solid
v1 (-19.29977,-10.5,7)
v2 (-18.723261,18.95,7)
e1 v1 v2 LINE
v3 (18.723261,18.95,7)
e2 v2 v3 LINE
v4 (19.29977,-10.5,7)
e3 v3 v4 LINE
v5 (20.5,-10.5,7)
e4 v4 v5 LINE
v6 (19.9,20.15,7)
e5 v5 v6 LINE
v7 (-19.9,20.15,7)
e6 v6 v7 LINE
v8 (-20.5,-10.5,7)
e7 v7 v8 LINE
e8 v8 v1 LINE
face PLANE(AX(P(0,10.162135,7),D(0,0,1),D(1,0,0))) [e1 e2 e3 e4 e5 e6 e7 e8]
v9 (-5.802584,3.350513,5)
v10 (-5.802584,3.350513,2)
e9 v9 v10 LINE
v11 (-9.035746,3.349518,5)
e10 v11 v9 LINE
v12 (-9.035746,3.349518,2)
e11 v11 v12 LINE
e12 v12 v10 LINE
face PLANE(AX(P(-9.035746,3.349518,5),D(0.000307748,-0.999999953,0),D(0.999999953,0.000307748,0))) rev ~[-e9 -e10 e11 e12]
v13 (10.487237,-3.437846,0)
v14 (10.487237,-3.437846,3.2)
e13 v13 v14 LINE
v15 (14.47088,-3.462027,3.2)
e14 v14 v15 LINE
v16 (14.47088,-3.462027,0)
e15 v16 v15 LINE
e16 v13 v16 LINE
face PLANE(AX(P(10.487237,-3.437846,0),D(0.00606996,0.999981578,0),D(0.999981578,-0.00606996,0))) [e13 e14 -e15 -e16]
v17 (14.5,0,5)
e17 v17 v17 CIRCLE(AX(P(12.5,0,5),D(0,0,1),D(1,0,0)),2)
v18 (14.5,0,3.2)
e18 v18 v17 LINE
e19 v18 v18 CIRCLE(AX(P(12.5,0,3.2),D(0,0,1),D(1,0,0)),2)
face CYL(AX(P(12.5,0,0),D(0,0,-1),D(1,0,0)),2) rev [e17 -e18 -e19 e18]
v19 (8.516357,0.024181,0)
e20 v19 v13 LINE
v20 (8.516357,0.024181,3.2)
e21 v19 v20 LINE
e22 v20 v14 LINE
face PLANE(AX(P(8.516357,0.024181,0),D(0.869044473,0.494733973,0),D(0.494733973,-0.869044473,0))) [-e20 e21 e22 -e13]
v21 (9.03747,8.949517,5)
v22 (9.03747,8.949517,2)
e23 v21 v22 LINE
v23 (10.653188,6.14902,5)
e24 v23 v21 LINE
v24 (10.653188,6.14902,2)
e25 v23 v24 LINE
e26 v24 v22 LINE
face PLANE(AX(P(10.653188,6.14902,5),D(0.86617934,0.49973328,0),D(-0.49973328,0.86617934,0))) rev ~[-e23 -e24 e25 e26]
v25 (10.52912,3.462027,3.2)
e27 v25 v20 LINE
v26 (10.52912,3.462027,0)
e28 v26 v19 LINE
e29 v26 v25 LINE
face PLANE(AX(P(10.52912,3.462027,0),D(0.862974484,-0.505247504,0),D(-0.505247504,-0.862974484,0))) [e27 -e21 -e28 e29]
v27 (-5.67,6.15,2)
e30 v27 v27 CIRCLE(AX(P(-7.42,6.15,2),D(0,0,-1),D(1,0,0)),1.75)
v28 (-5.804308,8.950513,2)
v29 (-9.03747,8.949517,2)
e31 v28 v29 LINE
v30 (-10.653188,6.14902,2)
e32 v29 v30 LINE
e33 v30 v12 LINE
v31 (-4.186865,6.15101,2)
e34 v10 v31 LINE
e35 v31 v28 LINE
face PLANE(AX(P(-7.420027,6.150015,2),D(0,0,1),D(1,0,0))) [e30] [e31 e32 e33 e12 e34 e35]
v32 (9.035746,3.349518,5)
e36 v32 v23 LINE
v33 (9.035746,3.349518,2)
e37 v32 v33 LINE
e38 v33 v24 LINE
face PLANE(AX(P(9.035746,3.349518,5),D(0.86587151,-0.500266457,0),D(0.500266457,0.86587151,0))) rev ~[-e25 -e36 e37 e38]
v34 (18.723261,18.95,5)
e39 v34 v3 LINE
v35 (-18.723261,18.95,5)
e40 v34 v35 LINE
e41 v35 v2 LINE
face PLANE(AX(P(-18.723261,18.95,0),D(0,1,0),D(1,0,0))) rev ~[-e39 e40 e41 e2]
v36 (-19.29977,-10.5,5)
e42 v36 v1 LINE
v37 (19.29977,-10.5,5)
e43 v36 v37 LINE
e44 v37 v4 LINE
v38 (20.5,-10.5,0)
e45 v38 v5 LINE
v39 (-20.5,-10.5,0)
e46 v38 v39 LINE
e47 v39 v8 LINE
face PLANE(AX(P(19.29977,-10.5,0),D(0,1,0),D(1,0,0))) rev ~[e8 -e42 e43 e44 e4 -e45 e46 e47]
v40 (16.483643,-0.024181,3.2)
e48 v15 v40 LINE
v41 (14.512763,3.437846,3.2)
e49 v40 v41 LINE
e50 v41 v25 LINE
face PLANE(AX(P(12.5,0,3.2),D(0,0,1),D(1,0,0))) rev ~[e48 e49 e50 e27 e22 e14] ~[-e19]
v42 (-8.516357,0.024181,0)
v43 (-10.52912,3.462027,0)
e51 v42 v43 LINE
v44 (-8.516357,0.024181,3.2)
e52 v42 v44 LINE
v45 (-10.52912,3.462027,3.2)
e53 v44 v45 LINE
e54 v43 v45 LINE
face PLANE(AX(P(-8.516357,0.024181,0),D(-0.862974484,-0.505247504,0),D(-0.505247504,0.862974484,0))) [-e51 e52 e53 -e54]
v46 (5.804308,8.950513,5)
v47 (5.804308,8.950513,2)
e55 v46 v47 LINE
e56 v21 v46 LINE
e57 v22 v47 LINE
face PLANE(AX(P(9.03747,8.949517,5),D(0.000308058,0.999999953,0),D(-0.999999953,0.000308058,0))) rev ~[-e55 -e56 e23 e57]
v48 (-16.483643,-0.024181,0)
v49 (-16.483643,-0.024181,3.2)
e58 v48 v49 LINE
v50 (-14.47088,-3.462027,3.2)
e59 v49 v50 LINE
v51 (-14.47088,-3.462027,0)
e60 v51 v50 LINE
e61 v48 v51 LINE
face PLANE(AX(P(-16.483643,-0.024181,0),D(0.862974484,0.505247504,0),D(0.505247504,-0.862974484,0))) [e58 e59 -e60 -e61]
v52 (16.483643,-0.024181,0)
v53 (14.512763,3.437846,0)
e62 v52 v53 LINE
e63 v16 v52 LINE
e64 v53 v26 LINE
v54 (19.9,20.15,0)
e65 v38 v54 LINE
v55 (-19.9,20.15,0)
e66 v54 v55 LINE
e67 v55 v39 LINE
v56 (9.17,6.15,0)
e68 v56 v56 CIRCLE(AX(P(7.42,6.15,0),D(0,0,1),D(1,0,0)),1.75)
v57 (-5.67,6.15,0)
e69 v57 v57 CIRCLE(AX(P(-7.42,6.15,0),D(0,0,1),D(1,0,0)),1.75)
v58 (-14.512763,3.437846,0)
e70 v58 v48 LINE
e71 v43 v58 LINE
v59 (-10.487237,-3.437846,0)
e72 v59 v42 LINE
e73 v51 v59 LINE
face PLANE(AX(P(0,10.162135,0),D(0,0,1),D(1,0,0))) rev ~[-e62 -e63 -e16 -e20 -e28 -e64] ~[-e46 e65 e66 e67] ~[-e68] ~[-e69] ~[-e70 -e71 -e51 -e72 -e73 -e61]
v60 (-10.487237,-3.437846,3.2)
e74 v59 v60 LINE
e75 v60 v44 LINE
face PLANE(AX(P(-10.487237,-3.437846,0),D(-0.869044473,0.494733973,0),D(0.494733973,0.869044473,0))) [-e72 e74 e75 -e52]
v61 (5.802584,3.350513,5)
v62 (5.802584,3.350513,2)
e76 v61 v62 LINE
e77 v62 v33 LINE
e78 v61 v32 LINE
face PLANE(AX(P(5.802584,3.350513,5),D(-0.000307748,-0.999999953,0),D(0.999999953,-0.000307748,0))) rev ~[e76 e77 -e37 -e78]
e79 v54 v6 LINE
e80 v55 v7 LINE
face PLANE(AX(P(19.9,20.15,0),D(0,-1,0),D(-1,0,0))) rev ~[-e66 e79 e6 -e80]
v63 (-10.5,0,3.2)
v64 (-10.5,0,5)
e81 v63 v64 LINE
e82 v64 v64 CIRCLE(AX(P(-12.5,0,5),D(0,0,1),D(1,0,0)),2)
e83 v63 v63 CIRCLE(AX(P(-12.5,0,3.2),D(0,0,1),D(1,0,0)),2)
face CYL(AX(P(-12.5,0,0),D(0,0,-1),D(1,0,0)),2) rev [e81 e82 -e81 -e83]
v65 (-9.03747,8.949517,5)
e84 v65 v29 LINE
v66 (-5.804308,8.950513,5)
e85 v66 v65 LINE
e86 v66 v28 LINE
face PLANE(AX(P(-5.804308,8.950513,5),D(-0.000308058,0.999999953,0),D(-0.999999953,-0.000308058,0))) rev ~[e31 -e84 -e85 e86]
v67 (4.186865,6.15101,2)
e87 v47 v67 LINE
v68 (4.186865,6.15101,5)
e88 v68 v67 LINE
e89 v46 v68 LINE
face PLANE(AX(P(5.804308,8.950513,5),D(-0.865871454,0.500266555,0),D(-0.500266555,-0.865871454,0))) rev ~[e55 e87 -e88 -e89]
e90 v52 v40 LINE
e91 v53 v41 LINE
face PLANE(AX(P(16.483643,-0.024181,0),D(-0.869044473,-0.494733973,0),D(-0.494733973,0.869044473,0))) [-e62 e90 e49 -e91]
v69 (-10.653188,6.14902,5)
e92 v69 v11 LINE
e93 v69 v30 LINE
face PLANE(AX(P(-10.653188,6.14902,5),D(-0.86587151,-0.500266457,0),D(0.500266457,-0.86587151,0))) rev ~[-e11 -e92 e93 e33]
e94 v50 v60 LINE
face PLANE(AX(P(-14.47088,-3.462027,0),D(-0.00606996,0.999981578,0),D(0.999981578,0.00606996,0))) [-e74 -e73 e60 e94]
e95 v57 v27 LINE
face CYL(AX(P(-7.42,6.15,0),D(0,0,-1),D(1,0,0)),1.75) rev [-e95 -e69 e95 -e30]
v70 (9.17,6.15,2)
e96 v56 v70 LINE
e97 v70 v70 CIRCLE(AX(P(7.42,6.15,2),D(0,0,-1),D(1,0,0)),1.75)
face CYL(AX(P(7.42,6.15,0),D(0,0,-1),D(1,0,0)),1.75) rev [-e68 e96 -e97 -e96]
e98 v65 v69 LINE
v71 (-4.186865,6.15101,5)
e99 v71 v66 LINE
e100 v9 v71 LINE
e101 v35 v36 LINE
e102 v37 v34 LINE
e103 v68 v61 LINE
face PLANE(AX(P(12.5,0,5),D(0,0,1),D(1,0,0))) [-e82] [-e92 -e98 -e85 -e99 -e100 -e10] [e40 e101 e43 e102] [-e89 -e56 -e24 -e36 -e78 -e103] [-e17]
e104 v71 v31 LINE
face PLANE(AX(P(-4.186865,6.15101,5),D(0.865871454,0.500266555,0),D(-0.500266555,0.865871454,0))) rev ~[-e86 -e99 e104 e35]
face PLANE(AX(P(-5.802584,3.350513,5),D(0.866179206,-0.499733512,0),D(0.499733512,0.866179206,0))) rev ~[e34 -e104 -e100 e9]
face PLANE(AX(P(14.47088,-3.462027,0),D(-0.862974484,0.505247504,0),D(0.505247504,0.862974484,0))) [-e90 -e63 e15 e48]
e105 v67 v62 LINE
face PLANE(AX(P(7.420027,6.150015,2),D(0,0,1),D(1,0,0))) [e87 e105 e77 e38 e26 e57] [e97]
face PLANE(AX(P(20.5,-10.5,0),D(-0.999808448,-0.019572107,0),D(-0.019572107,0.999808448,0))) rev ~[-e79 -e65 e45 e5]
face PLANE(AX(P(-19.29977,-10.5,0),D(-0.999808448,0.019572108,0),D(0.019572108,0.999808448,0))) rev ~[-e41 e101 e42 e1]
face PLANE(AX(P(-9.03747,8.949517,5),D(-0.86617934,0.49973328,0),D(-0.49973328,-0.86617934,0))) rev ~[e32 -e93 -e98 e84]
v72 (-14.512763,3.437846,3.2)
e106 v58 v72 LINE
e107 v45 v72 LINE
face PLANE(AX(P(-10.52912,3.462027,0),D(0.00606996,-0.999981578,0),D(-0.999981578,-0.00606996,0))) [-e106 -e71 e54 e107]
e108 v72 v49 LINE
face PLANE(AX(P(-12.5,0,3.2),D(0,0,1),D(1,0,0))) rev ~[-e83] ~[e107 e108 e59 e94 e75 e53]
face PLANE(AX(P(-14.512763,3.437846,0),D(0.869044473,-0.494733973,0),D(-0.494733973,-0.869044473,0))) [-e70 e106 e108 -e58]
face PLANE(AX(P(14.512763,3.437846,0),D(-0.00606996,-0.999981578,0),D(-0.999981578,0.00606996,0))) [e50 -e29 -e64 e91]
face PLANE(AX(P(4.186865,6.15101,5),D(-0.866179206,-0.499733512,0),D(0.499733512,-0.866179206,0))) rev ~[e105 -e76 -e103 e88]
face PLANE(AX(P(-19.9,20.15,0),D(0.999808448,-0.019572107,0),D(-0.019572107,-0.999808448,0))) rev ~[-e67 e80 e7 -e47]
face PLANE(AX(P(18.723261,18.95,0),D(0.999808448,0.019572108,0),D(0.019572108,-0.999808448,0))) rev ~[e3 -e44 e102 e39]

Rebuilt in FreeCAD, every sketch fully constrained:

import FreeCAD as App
import Part
import Sketcher
Q = App.Units.Quantity

doc = App.newDocument("Part")
body = doc.addObject("PartDesign::Body", "Body")

# Sketch on XY plane
sketch1 = body.newObject("Sketcher::SketchObject", "Sketch")
sketch1.AttachmentSupport = (doc.getObject("XY_Plane"), [""])
sketch1.MapMode = "FlatFace"
sketch1.addGeometry(Part.LineSegment(App.Vector(19.3, -10.5, 0), App.Vector(18.7, 18.9, 0)), False)
sketch1.addGeometry(Part.LineSegment(App.Vector(18.7, 18.9, 0), App.Vector(-18.7, 18.9, 0)), False)
sketch1.addGeometry(Part.LineSegment(App.Vector(-18.7, 18.9, 0), App.Vector(-19.3, -10.5, 0)), False)
sketch1.addGeometry(Part.LineSegment(App.Vector(-19.3, -10.5, 0), App.Vector(19.3, -10.5, 0)), False)
sketch1.addGeometry(Part.Circle(App.Vector(-12.5, 0, 0), App.Vector(0, 0, 1), 2), False)
sketch1.addGeometry(Part.Circle(App.Vector(12.5, 0, 0), App.Vector(0, 0, 1), 2), False)
sketch1.addGeometry(Part.Circle(App.Vector(-7.4, 6.2, 0), App.Vector(0, 0, 1), 1.8), False)
sketch1.addGeometry(Part.Circle(App.Vector(7.4, 6.2, 0), App.Vector(0, 0, 1), 1.8), False)
sketch1.addConstraint(Sketcher.Constraint("Coincident", 0, 2, 1, 1))
sketch1.addConstraint(Sketcher.Constraint("Coincident", 1, 2, 2, 1))
sketch1.addConstraint(Sketcher.Constraint("Coincident", 2, 2, 3, 1))
sketch1.addConstraint(Sketcher.Constraint("Coincident", 3, 2, 0, 1))
sketch1.addConstraint(Sketcher.Constraint("Horizontal", 1))
sketch1.addConstraint(Sketcher.Constraint("Horizontal", 3))
sketch1.addConstraint(Sketcher.Constraint("Equal", 4, 5))
sketch1.addConstraint(Sketcher.Constraint("Equal", 6, 7))
sketch1.addConstraint(Sketcher.Constraint("Symmetric", 4, 3, 5, 3, -1, 1))
sketch1.addConstraint(Sketcher.Constraint("Symmetric", 6, 3, 7, 3, -2))
sketch1.addConstraint(Sketcher.Constraint("PointOnObject", 4, 3, -1))
sketch1.addConstraint(Sketcher.Constraint("Equal", 0, 2))
sketch1.addConstraint(Sketcher.Constraint("Diameter", 4, Q("4 mm")))
sketch1.addConstraint(Sketcher.Constraint("Diameter", 6, Q("3.5 mm")))
sketch1.addConstraint(Sketcher.Constraint("DistanceX", 4, 3, 5, 3, Q("25 mm")))
sketch1.addConstraint(Sketcher.Constraint("DistanceY", 2, 2, -1, 1, Q("10.5 mm")))
sketch1.addConstraint(Sketcher.Constraint("DistanceY", 7, 3, 0, 2, Q("12.8 mm")))
sketch1.addConstraint(Sketcher.Constraint("DistanceX", 6, 3, -1, 1, Q("7.42 mm")))
sketch1.addConstraint(Sketcher.Constraint("DistanceY", -1, 1, 6, 3, Q("6.15 mm")))
sketch1.addConstraint(Sketcher.Constraint("DistanceX", 3, 1, 3, 2, Q("38.59954 mm")))
sketch1.addConstraint(Sketcher.Constraint("DistanceX", 1, 2, 1, 1, Q("37.446522 mm")))
sketch1.addConstraint(Sketcher.Constraint("DistanceX", -1, 1, 0, 2, Q("18.723261 mm")))
pad1 = body.newObject("PartDesign::Pad", "Pad")
pad1.Profile = sketch1
pad1.Length = 5

# Sketch on XY plane
sketch2 = body.newObject("Sketcher::SketchObject", "Sketch001")
sketch2.AttachmentSupport = (doc.getObject("XY_Plane"), [""])
sketch2.MapMode = "FlatFace"
sketch2.addGeometry(Part.LineSegment(App.Vector(19.9, 20.1, 0), App.Vector(-19.9, 20.1, 0)), False)
sketch2.addGeometry(Part.LineSegment(App.Vector(-19.9, 20.1, 0), App.Vector(-20.5, -10.5, 0)), False)
sketch2.addGeometry(Part.LineSegment(App.Vector(-20.5, -10.5, 0), App.Vector(-19.3, -10.5, 0)), False)
sketch2.addGeometry(Part.LineSegment(App.Vector(-19.3, -10.5, 0), App.Vector(-18.7, 18.9, 0)), False)
sketch2.addGeometry(Part.LineSegment(App.Vector(-18.7, 18.9, 0), App.Vector(18.7, 18.9, 0)), False)
sketch2.addGeometry(Part.LineSegment(App.Vector(18.7, 18.9, 0), App.Vector(19.3, -10.5, 0)), False)
sketch2.addGeometry(Part.LineSegment(App.Vector(19.3, -10.5, 0), App.Vector(20.5, -10.5, 0)), False)
sketch2.addGeometry(Part.LineSegment(App.Vector(20.5, -10.5, 0), App.Vector(19.9, 20.1, 0)), False)
sketch2.addConstraint(Sketcher.Constraint("Coincident", 0, 2, 1, 1))
sketch2.addConstraint(Sketcher.Constraint("Coincident", 1, 2, 2, 1))
sketch2.addConstraint(Sketcher.Constraint("Coincident", 2, 2, 3, 1))
sketch2.addConstraint(Sketcher.Constraint("Coincident", 3, 2, 4, 1))
sketch2.addConstraint(Sketcher.Constraint("Coincident", 4, 2, 5, 1))
sketch2.addConstraint(Sketcher.Constraint("Coincident", 5, 2, 6, 1))
sketch2.addConstraint(Sketcher.Constraint("Coincident", 6, 2, 7, 1))
sketch2.addConstraint(Sketcher.Constraint("Coincident", 7, 2, 0, 1))
sketch2.addConstraint(Sketcher.Constraint("Horizontal", 0))
sketch2.addConstraint(Sketcher.Constraint("Horizontal", 2))
sketch2.addConstraint(Sketcher.Constraint("Horizontal", 4))
sketch2.addConstraint(Sketcher.Constraint("Horizontal", 6))
sketch2.addConstraint(Sketcher.Constraint("Symmetric", 2, 2, 5, 2, -2))
sketch2.addConstraint(Sketcher.Constraint("Parallel", 1, 3))
sketch2.addConstraint(Sketcher.Constraint("Parallel", 5, 7))
sketch2.addConstraint(Sketcher.Constraint("Equal", 2, 6))
sketch2.addConstraint(Sketcher.Constraint("Equal", 3, 5))
sketch2.addConstraint(Sketcher.Constraint("DistanceX", 0, 2, 0, 1, Q("39.8 mm")))
sketch2.addConstraint(Sketcher.Constraint("DistanceX", 1, 2, 6, 2, Q("41 mm")))
sketch2.addConstraint(Sketcher.Constraint("DistanceY", 1, 2, -1, 1, Q("10.5 mm")))
sketch2.addConstraint(Sketcher.Constraint("DistanceY", 3, 2, 0, 2, Q("1.2 mm")))
sketch2.addConstraint(Sketcher.Constraint("DistanceY", -1, 1, 0, 2, Q("20.15 mm")))
sketch2.addConstraint(Sketcher.Constraint("DistanceX", 2, 1, 2, 2, Q("1.20023 mm")))
pad2 = body.newObject("PartDesign::Pad", "Pad001")
pad2.Profile = sketch2
pad2.Length = 7

# Sketch on XY plane
sketch3 = body.newObject("Sketcher::SketchObject", "Sketch002")
sketch3.AttachmentSupport = (doc.getObject("XY_Plane"), [""])
sketch3.MapMode = "FlatFace"
sketch3.addGeometry(Part.LineSegment(App.Vector(14.5, -3.5, 0), App.Vector(16.5, 0, 0)), False)
sketch3.addGeometry(Part.LineSegment(App.Vector(16.5, 0, 0), App.Vector(14.5, 3.4, 0)), False)
sketch3.addGeometry(Part.LineSegment(App.Vector(14.5, 3.4, 0), App.Vector(10.5, 3.5, 0)), False)
sketch3.addGeometry(Part.LineSegment(App.Vector(10.5, 3.5, 0), App.Vector(8.5, 0, 0)), False)
sketch3.addGeometry(Part.LineSegment(App.Vector(8.5, 0, 0), App.Vector(10.5, -3.4, 0)), False)
sketch3.addGeometry(Part.LineSegment(App.Vector(10.5, -3.4, 0), App.Vector(14.5, -3.5, 0)), False)
sketch3.addGeometry(Part.Circle(App.Vector(12.5, 0, 0), App.Vector(0, 0, 1), 2), False)
sketch3.addGeometry(Part.LineSegment(App.Vector(-14.5, 3.4, 0), App.Vector(-16.5, 0, 0)), False)
sketch3.addGeometry(Part.LineSegment(App.Vector(-16.5, 0, 0), App.Vector(-14.5, -3.5, 0)), False)
sketch3.addGeometry(Part.LineSegment(App.Vector(-14.5, -3.5, 0), App.Vector(-10.5, -3.4, 0)), False)
sketch3.addGeometry(Part.LineSegment(App.Vector(-10.5, -3.4, 0), App.Vector(-8.5, 0, 0)), False)
sketch3.addGeometry(Part.LineSegment(App.Vector(-8.5, 0, 0), App.Vector(-10.5, 3.5, 0)), False)
sketch3.addGeometry(Part.LineSegment(App.Vector(-10.5, 3.5, 0), App.Vector(-14.5, 3.4, 0)), False)
sketch3.addGeometry(Part.Circle(App.Vector(-12.5, 0, 0), App.Vector(0, 0, 1), 2), False)
sketch3.addConstraint(Sketcher.Constraint("Coincident", 0, 2, 1, 1))
sketch3.addConstraint(Sketcher.Constraint("Coincident", 1, 2, 2, 1))
sketch3.addConstraint(Sketcher.Constraint("Coincident", 2, 2, 3, 1))
sketch3.addConstraint(Sketcher.Constraint("Coincident", 3, 2, 4, 1))
sketch3.addConstraint(Sketcher.Constraint("Coincident", 4, 2, 5, 1))
sketch3.addConstraint(Sketcher.Constraint("Coincident", 5, 2, 0, 1))
sketch3.addConstraint(Sketcher.Constraint("Coincident", 7, 2, 8, 1))
sketch3.addConstraint(Sketcher.Constraint("Coincident", 8, 2, 9, 1))
sketch3.addConstraint(Sketcher.Constraint("Coincident", 9, 2, 10, 1))
sketch3.addConstraint(Sketcher.Constraint("Coincident", 10, 2, 11, 1))
sketch3.addConstraint(Sketcher.Constraint("Coincident", 11, 2, 12, 1))
sketch3.addConstraint(Sketcher.Constraint("Coincident", 12, 2, 7, 1))
sketch3.addConstraint(Sketcher.Constraint("Equal", 6, 13))
sketch3.addConstraint(Sketcher.Constraint("Symmetric", 6, 3, 13, 3, -1, 1))
sketch3.addConstraint(Sketcher.Constraint("Symmetric", 0, 2, 7, 2, -2))
sketch3.addConstraint(Sketcher.Constraint("Symmetric", 5, 2, 8, 2, -2))
sketch3.addConstraint(Sketcher.Constraint("Symmetric", 4, 2, 9, 2, -2))
sketch3.addConstraint(Sketcher.Constraint("Symmetric", 3, 2, 10, 2, -2))
sketch3.addConstraint(Sketcher.Constraint("Symmetric", 2, 2, 11, 2, -2))
sketch3.addConstraint(Sketcher.Constraint("Symmetric", 1, 2, 12, 2, -2))
sketch3.addConstraint(Sketcher.Constraint("PointOnObject", 6, 3, -1))
sketch3.addConstraint(Sketcher.Constraint("Parallel", 0, 3))
sketch3.addConstraint(Sketcher.Constraint("Parallel", 1, 4))
sketch3.addConstraint(Sketcher.Constraint("Parallel", 2, 5))
sketch3.addConstraint(Sketcher.Constraint("Equal", 0, 1))
sketch3.addConstraint(Sketcher.Constraint("Equal", 1, 2))
sketch3.addConstraint(Sketcher.Constraint("Equal", 2, 3))
sketch3.addConstraint(Sketcher.Constraint("Diameter", 6, Q("4 mm")))
sketch3.addConstraint(Sketcher.Constraint("DistanceX", 13, 3, 6, 3, Q("25 mm")))
sketch3.addConstraint(Sketcher.Constraint("DistanceX", 7, 2, 3, 2, Q("25 mm")))
sketch3.addConstraint(Sketcher.Constraint("DistanceY", 0, 2, -1, 1, Q("0.024181 mm")))
sketch3.addConstraint(Sketcher.Constraint("DistanceX", -1, 1, 2, 2, Q("10.52912 mm")))
sketch3.addConstraint(Sketcher.Constraint("DistanceY", -1, 1, 3, 2, Q("0.024181 mm")))
sketch3.addConstraint(Sketcher.Constraint("DistanceX", 1, 2, 0, 2, Q("1.97088 mm")))
sketch3.addConstraint(Sketcher.Constraint("DistanceY", 1, 2, 2, 2, Q("0.024181 mm")))
pocket1 = body.newObject("PartDesign::Pocket", "Pocket")
pocket1.Profile = sketch3
pocket1.Length = 3.2
pocket1.Reversed = True

# Sketch on XY plane
sketch4 = body.newObject("Sketcher::SketchObject", "Sketch003")
sketch4.AttachmentSupport = (doc.getObject("XY_Plane"), [""])
sketch4.MapMode = "FlatFace"
sketch4.AttachmentOffset = App.Placement(App.Vector(0, 0, 5), App.Rotation())
sketch4.addGeometry(Part.LineSegment(App.Vector(10.7, 6.1, 0), App.Vector(9, 8.9, 0)), False)
sketch4.addGeometry(Part.LineSegment(App.Vector(9, 8.9, 0), App.Vector(5.8, 9, 0)), False)
sketch4.addGeometry(Part.LineSegment(App.Vector(5.8, 9, 0), App.Vector(4.2, 6.2, 0)), False)
sketch4.addGeometry(Part.LineSegment(App.Vector(4.2, 6.2, 0), App.Vector(5.8, 3.4, 0)), False)
sketch4.addGeometry(Part.LineSegment(App.Vector(5.8, 3.4, 0), App.Vector(9, 3.3, 0)), False)
sketch4.addGeometry(Part.LineSegment(App.Vector(9, 3.3, 0), App.Vector(10.7, 6.1, 0)), False)
sketch4.addGeometry(Part.LineSegment(App.Vector(-4.2, 6.2, 0), App.Vector(-5.8, 9, 0)), False)
sketch4.addGeometry(Part.LineSegment(App.Vector(-5.8, 9, 0), App.Vector(-9, 8.9, 0)), False)
sketch4.addGeometry(Part.LineSegment(App.Vector(-9, 8.9, 0), App.Vector(-10.7, 6.1, 0)), False)
sketch4.addGeometry(Part.LineSegment(App.Vector(-10.7, 6.1, 0), App.Vector(-9, 3.3, 0)), False)
sketch4.addGeometry(Part.LineSegment(App.Vector(-9, 3.3, 0), App.Vector(-5.8, 3.4, 0)), False)
sketch4.addGeometry(Part.LineSegment(App.Vector(-5.8, 3.4, 0), App.Vector(-4.2, 6.2, 0)), False)
sketch4.addConstraint(Sketcher.Constraint("Coincident", 0, 2, 1, 1))
sketch4.addConstraint(Sketcher.Constraint("Coincident", 1, 2, 2, 1))
sketch4.addConstraint(Sketcher.Constraint("Coincident", 2, 2, 3, 1))
sketch4.addConstraint(Sketcher.Constraint("Coincident", 3, 2, 4, 1))
sketch4.addConstraint(Sketcher.Constraint("Coincident", 4, 2, 5, 1))
sketch4.addConstraint(Sketcher.Constraint("Coincident", 5, 2, 0, 1))
sketch4.addConstraint(Sketcher.Constraint("Coincident", 6, 2, 7, 1))
sketch4.addConstraint(Sketcher.Constraint("Coincident", 7, 2, 8, 1))
sketch4.addConstraint(Sketcher.Constraint("Coincident", 8, 2, 9, 1))
sketch4.addConstraint(Sketcher.Constraint("Coincident", 9, 2, 10, 1))
sketch4.addConstraint(Sketcher.Constraint("Coincident", 10, 2, 11, 1))
sketch4.addConstraint(Sketcher.Constraint("Coincident", 11, 2, 6, 1))
sketch4.addConstraint(Sketcher.Constraint("Symmetric", 1, 2, 6, 2, -2))
sketch4.addConstraint(Sketcher.Constraint("Symmetric", 0, 2, 7, 2, -2))
sketch4.addConstraint(Sketcher.Constraint("Symmetric", 5, 2, 8, 2, -2))
sketch4.addConstraint(Sketcher.Constraint("Symmetric", 4, 2, 9, 2, -2))
sketch4.addConstraint(Sketcher.Constraint("Symmetric", 3, 2, 10, 2, -2))
sketch4.addConstraint(Sketcher.Constraint("Symmetric", 2, 2, 11, 2, -2))
sketch4.addConstraint(Sketcher.Constraint("Parallel", 0, 3))
sketch4.addConstraint(Sketcher.Constraint("Parallel", 1, 4))
sketch4.addConstraint(Sketcher.Constraint("Parallel", 2, 5))
sketch4.addConstraint(Sketcher.Constraint("Equal", 0, 1))
sketch4.addConstraint(Sketcher.Constraint("Equal", 1, 2))
sketch4.addConstraint(Sketcher.Constraint("Equal", 2, 3))
sketch4.addConstraint(Sketcher.Constraint("DistanceY", 3, 2, 1, 2, Q("5.6 mm")))
sketch4.addConstraint(Sketcher.Constraint("DistanceY", 4, 2, 5, 2, Q("2.799502 mm")))
sketch4.addConstraint(Sketcher.Constraint("Distance", 0, Q("3.233161 mm")))
sketch4.addConstraint(Sketcher.Constraint("DistanceX", -1, 1, 0, 2, Q("9.03747 mm")))
sketch4.addConstraint(Sketcher.Constraint("DistanceY", -1, 1, 2, 2, Q("6.15101 mm")))
sketch4.addConstraint(Sketcher.Constraint("DistanceY", -1, 1, 4, 2, Q("3.349518 mm")))
pocket2 = body.newObject("PartDesign::Pocket", "Pocket001")
pocket2.Profile = sketch4
pocket2.Length = 3

doc.recompute()
